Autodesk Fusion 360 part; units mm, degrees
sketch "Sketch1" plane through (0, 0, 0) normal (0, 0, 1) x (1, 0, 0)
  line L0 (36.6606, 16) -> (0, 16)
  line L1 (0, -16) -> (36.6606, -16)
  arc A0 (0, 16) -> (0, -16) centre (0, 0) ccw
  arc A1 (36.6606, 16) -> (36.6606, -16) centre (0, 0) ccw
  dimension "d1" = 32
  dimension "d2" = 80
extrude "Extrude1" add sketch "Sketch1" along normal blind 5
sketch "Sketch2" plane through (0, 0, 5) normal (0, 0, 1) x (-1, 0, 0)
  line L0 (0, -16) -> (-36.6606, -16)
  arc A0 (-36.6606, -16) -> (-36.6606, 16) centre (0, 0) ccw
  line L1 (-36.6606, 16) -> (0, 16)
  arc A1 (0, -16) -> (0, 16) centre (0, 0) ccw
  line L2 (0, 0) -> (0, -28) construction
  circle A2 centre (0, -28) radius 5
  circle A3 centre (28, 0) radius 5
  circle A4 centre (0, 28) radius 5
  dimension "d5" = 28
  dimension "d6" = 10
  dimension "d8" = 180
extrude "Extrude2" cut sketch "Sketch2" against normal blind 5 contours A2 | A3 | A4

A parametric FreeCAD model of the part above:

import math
import FreeCAD as App
import Part
import Sketcher

V = App.Vector
Q = App.Units.Quantity

doc = App.newDocument("Part")
params = doc.addObject("Spreadsheet::Sheet", "Params")
for row, (alias, value) in enumerate([
    ("sketch1_radius", "40 mm"),
    ("sketch1_radius2", "16 mm"),
    ("pad1_length", "5 mm"),
    ("sketch2_diameter", "10 mm"),
    ("pocket1_length", "5 mm"),
], start=1):
    params.set(f"A{row}", alias)
    params.set(f"B{row}", "=" + value)
    params.setAlias(f"B{row}", alias)

body = doc.addObject("PartDesign::Body", "Body")

# Sketch on XY plane
sketch1 = doc.addObject("Sketcher::SketchObject", "Sketch")
body.addObject(sketch1)
sketch1.AttachmentSupport = (doc.XY_Plane, [""])
sketch1.MapMode = "FlatFace"
sketch1.addGeometry([
    Part.LineSegment(V(0, 16, 0), V(36.6606, 16, 0)),
    Part.ArcOfCircle(Part.Circle(V(0, 0, 0), V(0, 0, 1), 39.999995), math.radians(23.578182), math.radians(336.421818)),
    Part.LineSegment(V(36.6606, -16, 0), V(0, -16, 0)),
    Part.ArcOfCircle(Part.Circle(V(0, 0, 0), V(0, 0, 1), 16), math.radians(90), math.radians(270)),
], False)
sketch1.addConstraint([
    Sketcher.Constraint("Coincident", 0, 2, 1, 1),
    Sketcher.Constraint("Coincident", 1, 2, 2, 1),
    Sketcher.Constraint("Tangent", 2, 2, 3, 2),
    Sketcher.Constraint("Tangent", 3, 1, 0, 1),
    Sketcher.Constraint("Horizontal", 0),
    Sketcher.Constraint("Horizontal", 2),
    Sketcher.Constraint("Coincident", 1, 3, -1, 1),
    Sketcher.Constraint("Coincident", 3, 3, -1, 1),
    Sketcher.Constraint("Radius", 1, Q("40 mm")),
    Sketcher.Constraint("Radius", 3, Q("16 mm")),
])
sketch1.setExpression("Constraints[8]", "Params.sketch1_radius")
sketch1.setExpression("Constraints[9]", "Params.sketch1_radius2")
pad1 = doc.addObject("PartDesign::Pad", "Pad")
body.addObject(pad1)
pad1.Profile = sketch1
pad1.setExpression("Length", "Params.pad1_length")

# Sketch on XY plane
sketch2 = doc.addObject("Sketcher::SketchObject", "Sketch001")
body.addObject(sketch2)
sketch2.AttachmentSupport = (doc.XY_Plane, [""])
sketch2.MapMode = "FlatFace"
sketch2.AttachmentOffset = App.Placement(V(0, 0, 5), App.Rotation())
sketch2.addGeometry([
    Part.Circle(V(0, 28, 0), V(0, 0, 1), 5),
    Part.Circle(V(-28, 0, 0), V(0, 0, 1), 5),
    Part.Circle(V(0, -28, 0), V(0, 0, 1), 5),
], False)
sketch2.addConstraint([
    Sketcher.Constraint("Equal", 0, 1),
    Sketcher.Constraint("Equal", 1, 2),
    Sketcher.Constraint("Symmetric", 0, 3, 2, 3, -1, 1),
    Sketcher.Constraint("PointOnObject", 0, 3, -2),
    Sketcher.Constraint("PointOnObject", 1, 3, -1),
    Sketcher.Constraint("Diameter", 0, Q("10 mm")),
    Sketcher.Constraint("DistanceY", -1, 1, 0, 3, Q("28 mm")),
    Sketcher.Constraint("DistanceX", 1, 3, -1, 1, Q("28 mm")),
])
sketch2.setExpression("Constraints[5]", "Params.sketch2_diameter")
pocket1 = doc.addObject("PartDesign::Pocket", "Pocket")
body.addObject(pocket1)
pocket1.Profile = sketch2
pocket1.setExpression("Length", "Params.pocket1_length")

doc.recompute()
